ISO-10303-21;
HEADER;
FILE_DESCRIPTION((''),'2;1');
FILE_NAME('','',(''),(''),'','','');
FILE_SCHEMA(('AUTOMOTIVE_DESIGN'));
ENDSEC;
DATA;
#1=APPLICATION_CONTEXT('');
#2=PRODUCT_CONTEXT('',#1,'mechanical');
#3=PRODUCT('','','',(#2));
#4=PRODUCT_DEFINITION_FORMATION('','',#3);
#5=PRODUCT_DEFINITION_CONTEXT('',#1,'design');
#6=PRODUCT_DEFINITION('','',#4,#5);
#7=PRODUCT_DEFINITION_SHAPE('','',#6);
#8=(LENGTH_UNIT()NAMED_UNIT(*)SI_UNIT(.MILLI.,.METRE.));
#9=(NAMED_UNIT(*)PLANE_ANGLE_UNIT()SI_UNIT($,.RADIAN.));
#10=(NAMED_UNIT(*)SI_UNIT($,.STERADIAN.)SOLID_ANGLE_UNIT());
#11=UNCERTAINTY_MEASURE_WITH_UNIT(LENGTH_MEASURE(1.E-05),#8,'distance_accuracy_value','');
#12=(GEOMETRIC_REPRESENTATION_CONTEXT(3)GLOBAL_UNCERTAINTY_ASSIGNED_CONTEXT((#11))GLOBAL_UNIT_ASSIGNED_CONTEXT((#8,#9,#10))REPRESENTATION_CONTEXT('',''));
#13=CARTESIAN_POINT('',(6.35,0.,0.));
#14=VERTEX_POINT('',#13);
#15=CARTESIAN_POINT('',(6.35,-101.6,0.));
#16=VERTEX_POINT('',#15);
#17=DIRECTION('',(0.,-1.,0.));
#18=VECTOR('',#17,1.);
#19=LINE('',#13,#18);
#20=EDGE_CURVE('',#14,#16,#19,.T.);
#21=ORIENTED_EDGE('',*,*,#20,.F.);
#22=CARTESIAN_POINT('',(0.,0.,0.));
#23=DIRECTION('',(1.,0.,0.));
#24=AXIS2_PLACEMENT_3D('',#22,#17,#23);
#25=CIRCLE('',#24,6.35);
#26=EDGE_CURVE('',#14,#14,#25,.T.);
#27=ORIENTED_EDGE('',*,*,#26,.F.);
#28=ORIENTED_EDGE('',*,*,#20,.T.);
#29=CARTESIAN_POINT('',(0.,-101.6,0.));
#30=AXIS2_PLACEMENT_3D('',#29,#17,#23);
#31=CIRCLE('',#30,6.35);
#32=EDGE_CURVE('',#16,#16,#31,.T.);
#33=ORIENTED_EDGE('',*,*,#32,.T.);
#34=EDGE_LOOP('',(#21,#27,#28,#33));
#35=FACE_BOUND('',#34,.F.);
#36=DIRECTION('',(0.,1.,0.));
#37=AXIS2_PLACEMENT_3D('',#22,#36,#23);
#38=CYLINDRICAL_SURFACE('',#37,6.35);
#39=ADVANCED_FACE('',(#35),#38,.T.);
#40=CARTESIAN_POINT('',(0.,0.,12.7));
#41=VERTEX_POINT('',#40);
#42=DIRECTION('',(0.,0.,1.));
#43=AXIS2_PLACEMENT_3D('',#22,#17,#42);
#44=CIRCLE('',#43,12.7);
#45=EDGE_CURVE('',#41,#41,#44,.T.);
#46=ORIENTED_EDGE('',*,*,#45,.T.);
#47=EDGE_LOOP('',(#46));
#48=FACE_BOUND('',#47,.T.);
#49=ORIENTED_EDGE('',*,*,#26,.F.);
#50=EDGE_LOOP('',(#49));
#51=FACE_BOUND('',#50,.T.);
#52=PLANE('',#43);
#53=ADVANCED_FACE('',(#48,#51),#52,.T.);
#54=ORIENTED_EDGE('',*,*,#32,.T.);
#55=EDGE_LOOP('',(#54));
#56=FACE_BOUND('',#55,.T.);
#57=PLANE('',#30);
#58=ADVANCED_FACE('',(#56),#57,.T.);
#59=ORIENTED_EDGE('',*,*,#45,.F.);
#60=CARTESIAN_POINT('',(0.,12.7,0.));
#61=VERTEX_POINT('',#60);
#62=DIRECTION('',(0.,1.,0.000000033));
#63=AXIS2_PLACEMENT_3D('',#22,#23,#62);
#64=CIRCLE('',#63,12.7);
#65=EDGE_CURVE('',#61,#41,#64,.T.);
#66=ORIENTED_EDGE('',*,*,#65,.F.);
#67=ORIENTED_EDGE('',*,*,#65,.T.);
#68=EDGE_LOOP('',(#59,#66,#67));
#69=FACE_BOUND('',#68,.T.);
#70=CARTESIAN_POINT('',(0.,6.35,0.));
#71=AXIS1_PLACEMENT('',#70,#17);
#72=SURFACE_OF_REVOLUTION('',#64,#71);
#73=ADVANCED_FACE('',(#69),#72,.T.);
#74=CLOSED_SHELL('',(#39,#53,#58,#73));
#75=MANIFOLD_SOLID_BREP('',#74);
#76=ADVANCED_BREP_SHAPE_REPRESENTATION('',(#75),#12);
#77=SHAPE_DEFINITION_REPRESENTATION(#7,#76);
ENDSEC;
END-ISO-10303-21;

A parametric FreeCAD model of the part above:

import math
import FreeCAD as App
import Part
import Sketcher

V = App.Vector
Q = App.Units.Quantity

doc = App.newDocument("Part")
body = doc.addObject("PartDesign::Body", "Body")

sketch1 = body.newObject("Sketcher::SketchObject", "Sketch")
sketch1.AttachmentSupport = (doc.getObject("XZ_Plane"), [""])
sketch1.MapMode = "FlatFace"
sketch1.addGeometry(Part.Circle(V(0, 0, 0), V(0, 0, 1), 6.35), False)
sketch1.addConstraint(Sketcher.Constraint("Coincident", 0, 3, -1, 1))
sketch1.addConstraint(Sketcher.Constraint("Diameter", 0, Q("0.5 in")))
pad1 = body.newObject("PartDesign::Pad", "Pad")
pad1.Profile = sketch1
pad1.Length = Q("4 in")

sketch2 = body.newObject("Sketcher::SketchObject", "Sketch001")
sketch2.AttachmentSupport = (doc.getObject("YZ_Plane"), [""])
sketch2.MapMode = "FlatFace"
sketch2.addGeometry(Part.LineSegment(V(0, 12.7, 0), V(0, 0, 0)), False)
sketch2.addGeometry(Part.LineSegment(V(0, 0, 0), V(12.7, 0, 0)), False)
sketch2.addGeometry(Part.ArcOfCircle(Part.Circle(V(0, 0, 0), V(0, 0, 1), 12.7), math.radians(0.000002), math.radians(89.999998)), False)
sketch2.addConstraint(Sketcher.Constraint("Coincident", 0, 2, 1, 1))
sketch2.addConstraint(Sketcher.Constraint("Coincident", 1, 2, 2, 1))
sketch2.addConstraint(Sketcher.Constraint("Coincident", 2, 2, 0, 1))
sketch2.addConstraint(Sketcher.Constraint("Vertical", 0))
sketch2.addConstraint(Sketcher.Constraint("Horizontal", 1))
sketch2.addConstraint(Sketcher.Constraint("Coincident", 2, 3, -1, 1))
sketch2.addConstraint(Sketcher.Constraint("Coincident", 0, 2, -1, 1))
sketch2.addConstraint(Sketcher.Constraint("Radius", 2, Q("0.5 in")))
revolution = body.newObject("PartDesign::Revolution", "Revolution")
revolution.Profile = sketch2
revolution.ReferenceAxis = (sketch2, ["H_Axis"])
revolution.Angle = 360

doc.recompute()
